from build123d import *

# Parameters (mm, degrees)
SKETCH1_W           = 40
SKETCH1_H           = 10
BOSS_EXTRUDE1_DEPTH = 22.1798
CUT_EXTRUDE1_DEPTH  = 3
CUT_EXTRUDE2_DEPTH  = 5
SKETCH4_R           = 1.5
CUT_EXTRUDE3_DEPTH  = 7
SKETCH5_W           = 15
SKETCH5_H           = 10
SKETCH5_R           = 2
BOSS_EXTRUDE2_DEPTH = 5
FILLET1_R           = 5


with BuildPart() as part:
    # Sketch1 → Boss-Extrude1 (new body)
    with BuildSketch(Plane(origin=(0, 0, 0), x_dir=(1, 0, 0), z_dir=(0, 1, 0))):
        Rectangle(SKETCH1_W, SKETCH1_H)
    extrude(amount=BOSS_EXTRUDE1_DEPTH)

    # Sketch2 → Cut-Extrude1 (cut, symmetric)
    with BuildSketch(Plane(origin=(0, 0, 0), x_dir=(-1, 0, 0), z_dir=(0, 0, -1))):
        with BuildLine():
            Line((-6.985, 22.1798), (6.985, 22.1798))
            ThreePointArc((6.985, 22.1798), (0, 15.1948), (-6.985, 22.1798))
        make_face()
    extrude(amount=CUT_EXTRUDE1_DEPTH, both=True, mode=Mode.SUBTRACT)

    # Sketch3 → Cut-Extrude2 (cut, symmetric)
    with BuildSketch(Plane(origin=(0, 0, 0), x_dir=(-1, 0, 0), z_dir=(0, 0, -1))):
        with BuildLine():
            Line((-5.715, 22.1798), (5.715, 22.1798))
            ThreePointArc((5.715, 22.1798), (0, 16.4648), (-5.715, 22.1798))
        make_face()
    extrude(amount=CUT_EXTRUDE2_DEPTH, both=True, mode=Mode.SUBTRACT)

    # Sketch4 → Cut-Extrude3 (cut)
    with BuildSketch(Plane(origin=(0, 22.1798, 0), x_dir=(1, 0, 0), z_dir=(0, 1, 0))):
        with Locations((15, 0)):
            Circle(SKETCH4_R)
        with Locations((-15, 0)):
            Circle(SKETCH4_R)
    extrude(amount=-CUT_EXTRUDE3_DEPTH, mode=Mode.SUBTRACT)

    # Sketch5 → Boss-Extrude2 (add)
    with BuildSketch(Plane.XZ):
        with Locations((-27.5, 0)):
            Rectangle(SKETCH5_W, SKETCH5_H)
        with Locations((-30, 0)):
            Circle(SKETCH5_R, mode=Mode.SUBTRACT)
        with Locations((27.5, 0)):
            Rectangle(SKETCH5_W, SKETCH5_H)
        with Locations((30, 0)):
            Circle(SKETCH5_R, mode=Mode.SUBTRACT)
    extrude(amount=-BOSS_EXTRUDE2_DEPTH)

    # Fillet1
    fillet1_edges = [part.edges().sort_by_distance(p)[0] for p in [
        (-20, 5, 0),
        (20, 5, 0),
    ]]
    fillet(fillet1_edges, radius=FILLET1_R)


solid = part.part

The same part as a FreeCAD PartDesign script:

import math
import FreeCAD as App
import Part
import Sketcher
from FreeCAD import Vector


def edges_at(feature, points):
    """Names of the edges that pass closest to the given points."""
    edges = feature.Shape.Edges
    near = lambda p: min(range(len(edges)), key=lambda i: edges[i].distToShape(Part.Vertex(*p))[0])
    return sorted({f"Edge{near(p) + 1}" for p in points})

doc = App.newDocument("Part")
params = doc.addObject("Spreadsheet::Sheet", "Params")
for row, (alias, value) in enumerate([
    ("sketch1_width", "40 mm"),
    ("sketch1_height", "10 mm"),
    ("pad1_length", "22.1798 mm"),
    ("pocket1_length", "6 mm"),
    ("pocket2_length", "10 mm"),
    ("sketch4_diameter", "3 mm"),
    ("pocket3_length", "7 mm"),
    ("sketch5_diameter", "4 mm"),
    ("sketch5_width", "15 mm"),
    ("sketch5_height", "10 mm"),
    ("pad2_length", "5 mm"),
    ("fillet_radius", "5 mm"),
], start=1):
    params.set(f"A{row}", alias)
    params.set(f"B{row}", "=" + value)
    params.setAlias(f"B{row}", alias)

body = doc.addObject("PartDesign::Body", "Body")

sketch1 = doc.addObject("Sketcher::SketchObject", "Sketch")
body.addObject(sketch1)
sketch1.AttachmentSupport = (doc.XZ_Plane, [""])
sketch1.MapMode = "FlatFace"
sketch1.addGeometry([
    Part.LineSegment(Vector(-20, -5, 0), Vector(-20, 5, 0)),
    Part.LineSegment(Vector(-20, 5, 0), Vector(20, 5, 0)),
    Part.LineSegment(Vector(20, 5, 0), Vector(20, -5, 0)),
    Part.LineSegment(Vector(20, -5, 0), Vector(-20, -5, 0)),
], False)
sketch1.addConstraint([
    Sketcher.Constraint("Coincident", 0, 2, 1, 1),
    Sketcher.Constraint("Coincident", 1, 2, 2, 1),
    Sketcher.Constraint("Coincident", 2, 2, 3, 1),
    Sketcher.Constraint("Coincident", 3, 2, 0, 1),
    Sketcher.Constraint("Vertical", 0),
    Sketcher.Constraint("Horizontal", 1),
    Sketcher.Constraint("Vertical", 2),
    Sketcher.Constraint("Horizontal", 3),
    Sketcher.Constraint("Symmetric", 0, 2, 2, 2, -1, 1),
    Sketcher.Constraint("DistanceX", 1, 1, 1, 2, 40.0),
    Sketcher.Constraint("DistanceY", 0, 1, 0, 2, 10.0),
])
sketch1.setExpression("Constraints[9]", "Params.sketch1_width")
sketch1.setExpression("Constraints[10]", "Params.sketch1_height")
pad1 = doc.addObject("PartDesign::Pad", "Pad")
body.addObject(pad1)
pad1.Profile = sketch1
pad1.setExpression("Length", "Params.pad1_length")
pad1.Reversed = True

sketch2 = doc.addObject("Sketcher::SketchObject", "Sketch001")
body.addObject(sketch2)
sketch2.AttachmentSupport = (doc.XY_Plane, [""])
sketch2.MapMode = "FlatFace"
sketch2.addGeometry([
    Part.LineSegment(Vector(-7, 22, 0), Vector(7, 22, 0)),
    Part.ArcOfCircle(Part.Circle(Vector(0, 22, 0), Vector(0, 0, 1), 7), math.radians(180), math.radians(360)),
], False)
sketch2.addConstraint([
    Sketcher.Constraint("Coincident", 0, 1, 1, 1),
    Sketcher.Constraint("Coincident", 1, 2, 0, 2),
    Sketcher.Constraint("Horizontal", 0),
    Sketcher.Constraint("PointOnObject", 1, 3, -2),
    Sketcher.Constraint("Horizontal", 1, 3, 0, 1),
    Sketcher.Constraint("Radius", 1, 6.985),
    Sketcher.Constraint("DistanceY", -1, 1, 1, 3, 22.1798),
])
pocket1 = doc.addObject("PartDesign::Pocket", "Pocket")
body.addObject(pocket1)
pocket1.Profile = sketch2
pocket1.setExpression("Length", "Params.pocket1_length")
pocket1.Midplane = True

sketch3 = doc.addObject("Sketcher::SketchObject", "Sketch002")
body.addObject(sketch3)
sketch3.AttachmentSupport = (doc.XY_Plane, [""])
sketch3.MapMode = "FlatFace"
sketch3.addGeometry([
    Part.LineSegment(Vector(-6, 22, 0), Vector(6, 22, 0)),
    Part.ArcOfCircle(Part.Circle(Vector(0, 22, 0), Vector(0, 0, 1), 6), math.radians(180), math.radians(360)),
], False)
sketch3.addConstraint([
    Sketcher.Constraint("Coincident", 0, 1, 1, 1),
    Sketcher.Constraint("Coincident", 1, 2, 0, 2),
    Sketcher.Constraint("Horizontal", 0),
    Sketcher.Constraint("PointOnObject", 1, 3, -2),
    Sketcher.Constraint("Horizontal", 1, 3, 0, 1),
    Sketcher.Constraint("Radius", 1, 5.715),
    Sketcher.Constraint("DistanceY", -1, 1, 1, 3, 22.1798),
])
pocket2 = doc.addObject("PartDesign::Pocket", "Pocket001")
body.addObject(pocket2)
pocket2.Profile = sketch3
pocket2.setExpression("Length", "Params.pocket2_length")
pocket2.Midplane = True

sketch4 = doc.addObject("Sketcher::SketchObject", "Sketch003")
body.addObject(sketch4)
sketch4.AttachmentSupport = (doc.XZ_Plane, [""])
sketch4.MapMode = "FlatFace"
sketch4.AttachmentOffset = App.Placement(Vector(0, 0, -22.1798), App.Rotation())
sketch4.addGeometry([
    Part.Circle(Vector(15, 0, 0), Vector(0, 0, 1), 1.5),
    Part.Circle(Vector(-15, 0, 0), Vector(0, 0, 1), 1.5),
], False)
sketch4.addConstraint([
    Sketcher.Constraint("Equal", 0, 1),
    Sketcher.Constraint("Symmetric", 0, 3, 1, 3, -1, 1),
    Sketcher.Constraint("PointOnObject", 0, 3, -1),
    Sketcher.Constraint("Diameter", 0, 3.0),
    Sketcher.Constraint("DistanceX", -1, 1, 0, 3, 15.0),
])
sketch4.setExpression("Constraints[3]", "Params.sketch4_diameter")
pocket3 = doc.addObject("PartDesign::Pocket", "Pocket002")
body.addObject(pocket3)
pocket3.Profile = sketch4
pocket3.setExpression("Length", "Params.pocket3_length")
pocket3.Reversed = True

sketch5 = doc.addObject("Sketcher::SketchObject", "Sketch004")
body.addObject(sketch5)
sketch5.AttachmentSupport = (doc.XZ_Plane, [""])
sketch5.MapMode = "FlatFace"
sketch5.addGeometry([
    Part.LineSegment(Vector(-35, 5, 0), Vector(-35, -5, 0)),
    Part.LineSegment(Vector(-35, -5, 0), Vector(-20, -5, 0)),
    Part.LineSegment(Vector(-20, -5, 0), Vector(-20, 5, 0)),
    Part.LineSegment(Vector(-20, 5, 0), Vector(-35, 5, 0)),
    Part.Circle(Vector(-30, 0, 0), Vector(0, 0, 1), 2),
    Part.LineSegment(Vector(20, 5, 0), Vector(20, -5, 0)),
    Part.LineSegment(Vector(20, -5, 0), Vector(35, -5, 0)),
    Part.LineSegment(Vector(35, -5, 0), Vector(35, 5, 0)),
    Part.LineSegment(Vector(35, 5, 0), Vector(20, 5, 0)),
    Part.Circle(Vector(30, 0, 0), Vector(0, 0, 1), 2),
], False)
sketch5.addConstraint([
    Sketcher.Constraint("Coincident", 0, 2, 1, 1),
    Sketcher.Constraint("Coincident", 1, 2, 2, 1),
    Sketcher.Constraint("Coincident", 2, 2, 3, 1),
    Sketcher.Constraint("Coincident", 3, 2, 0, 1),
    Sketcher.Constraint("Coincident", 5, 2, 6, 1),
    Sketcher.Constraint("Coincident", 6, 2, 7, 1),
    Sketcher.Constraint("Coincident", 7, 2, 8, 1),
    Sketcher.Constraint("Coincident", 8, 2, 5, 1),
    Sketcher.Constraint("Vertical", 0),
    Sketcher.Constraint("Horizontal", 1),
    Sketcher.Constraint("Vertical", 2),
    Sketcher.Constraint("Horizontal", 3),
    Sketcher.Constraint("Vertical", 5),
    Sketcher.Constraint("Horizontal", 6),
    Sketcher.Constraint("Vertical", 7),
    Sketcher.Constraint("Horizontal", 8),
    Sketcher.Constraint("Equal", 4, 9),
    Sketcher.Constraint("Symmetric", 4, 3, 9, 3, -1, 1),
    Sketcher.Constraint("Symmetric", 2, 2, 5, 2, -1, 1),
    Sketcher.Constraint("Symmetric", 0, 2, 7, 2, -1, 1),
    Sketcher.Constraint("PointOnObject", 4, 3, -1),
    Sketcher.Constraint("Horizontal", 1, 2, 5, 2),
    Sketcher.Constraint("Diameter", 4, 4.0),
    Sketcher.Constraint("DistanceX", 1, 1, 1, 2, 15.0),
    Sketcher.Constraint("DistanceY", 0, 2, 0, 1, 10.0),
    Sketcher.Constraint("DistanceX", 4, 3, -1, 1, 30.0),
    Sketcher.Constraint("DistanceX", 0, 2, -1, 1, 35.0),
])
sketch5.setExpression("Constraints[22]", "Params.sketch5_diameter")
sketch5.setExpression("Constraints[23]", "Params.sketch5_width")
sketch5.setExpression("Constraints[24]", "Params.sketch5_height")
pad2 = doc.addObject("PartDesign::Pad", "Pad001")
body.addObject(pad2)
pad2.Profile = sketch5
pad2.setExpression("Length", "Params.pad2_length")
pad2.Reversed = True
doc.recompute()

fillet = doc.addObject("PartDesign::Fillet", "Fillet")
body.addObject(fillet)
fillet.Base = (pad2, edges_at(pad2, [(-20, 5, 0), (20, 5, 0)]))
fillet.setExpression("Radius", "Params.fillet_radius")

doc.recompute()
